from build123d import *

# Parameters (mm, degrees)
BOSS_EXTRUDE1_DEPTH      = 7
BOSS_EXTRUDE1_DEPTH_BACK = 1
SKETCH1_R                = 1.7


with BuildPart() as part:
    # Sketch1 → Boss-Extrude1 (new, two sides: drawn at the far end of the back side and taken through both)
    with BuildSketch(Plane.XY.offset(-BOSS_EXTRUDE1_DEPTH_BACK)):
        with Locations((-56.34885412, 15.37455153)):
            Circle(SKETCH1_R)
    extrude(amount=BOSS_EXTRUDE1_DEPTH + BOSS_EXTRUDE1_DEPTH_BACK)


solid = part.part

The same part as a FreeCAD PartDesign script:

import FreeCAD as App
import Part
import Sketcher

V = App.Vector

doc = App.newDocument("Part")
params = doc.addObject("Spreadsheet::Sheet", "Params")
for row, (alias, value) in enumerate([
    ("sketch1_diameter", "3.4 mm"),
    ("pad1_length", "7 mm"),
    ("pad1_length2", "1 mm"),
], start=1):
    params.set(f"A{row}", alias)
    params.set(f"B{row}", "=" + value)
    params.setAlias(f"B{row}", alias)

body = doc.addObject("PartDesign::Body", "Body")

# Sketch on XY plane
sketch1 = doc.addObject("Sketcher::SketchObject", "Sketch")
body.addObject(sketch1)
sketch1.AttachmentSupport = (doc.XY_Plane, [""])
sketch1.MapMode = "FlatFace"
sketch1.addGeometry(Part.Circle(V(-56.3, 15.4, 0), V(0, 0, 1), 1.7), False)
sketch1.addConstraint([
    Sketcher.Constraint("Diameter", 0, 3.4),
    Sketcher.Constraint("DistanceY", -1, 1, 0, 3, 15.374552),
    Sketcher.Constraint("DistanceX", 0, 3, -1, 1, 56.348854),
])
sketch1.setExpression("Constraints[0]", "Params.sketch1_diameter")
pad1 = doc.addObject("PartDesign::Pad", "Pad")
body.addObject(pad1)
pad1.Profile = sketch1
pad1.Type = "TwoLengths"
pad1.setExpression("Length", "Params.pad1_length")
pad1.setExpression("Length2", "Params.pad1_length2")

doc.recompute()
